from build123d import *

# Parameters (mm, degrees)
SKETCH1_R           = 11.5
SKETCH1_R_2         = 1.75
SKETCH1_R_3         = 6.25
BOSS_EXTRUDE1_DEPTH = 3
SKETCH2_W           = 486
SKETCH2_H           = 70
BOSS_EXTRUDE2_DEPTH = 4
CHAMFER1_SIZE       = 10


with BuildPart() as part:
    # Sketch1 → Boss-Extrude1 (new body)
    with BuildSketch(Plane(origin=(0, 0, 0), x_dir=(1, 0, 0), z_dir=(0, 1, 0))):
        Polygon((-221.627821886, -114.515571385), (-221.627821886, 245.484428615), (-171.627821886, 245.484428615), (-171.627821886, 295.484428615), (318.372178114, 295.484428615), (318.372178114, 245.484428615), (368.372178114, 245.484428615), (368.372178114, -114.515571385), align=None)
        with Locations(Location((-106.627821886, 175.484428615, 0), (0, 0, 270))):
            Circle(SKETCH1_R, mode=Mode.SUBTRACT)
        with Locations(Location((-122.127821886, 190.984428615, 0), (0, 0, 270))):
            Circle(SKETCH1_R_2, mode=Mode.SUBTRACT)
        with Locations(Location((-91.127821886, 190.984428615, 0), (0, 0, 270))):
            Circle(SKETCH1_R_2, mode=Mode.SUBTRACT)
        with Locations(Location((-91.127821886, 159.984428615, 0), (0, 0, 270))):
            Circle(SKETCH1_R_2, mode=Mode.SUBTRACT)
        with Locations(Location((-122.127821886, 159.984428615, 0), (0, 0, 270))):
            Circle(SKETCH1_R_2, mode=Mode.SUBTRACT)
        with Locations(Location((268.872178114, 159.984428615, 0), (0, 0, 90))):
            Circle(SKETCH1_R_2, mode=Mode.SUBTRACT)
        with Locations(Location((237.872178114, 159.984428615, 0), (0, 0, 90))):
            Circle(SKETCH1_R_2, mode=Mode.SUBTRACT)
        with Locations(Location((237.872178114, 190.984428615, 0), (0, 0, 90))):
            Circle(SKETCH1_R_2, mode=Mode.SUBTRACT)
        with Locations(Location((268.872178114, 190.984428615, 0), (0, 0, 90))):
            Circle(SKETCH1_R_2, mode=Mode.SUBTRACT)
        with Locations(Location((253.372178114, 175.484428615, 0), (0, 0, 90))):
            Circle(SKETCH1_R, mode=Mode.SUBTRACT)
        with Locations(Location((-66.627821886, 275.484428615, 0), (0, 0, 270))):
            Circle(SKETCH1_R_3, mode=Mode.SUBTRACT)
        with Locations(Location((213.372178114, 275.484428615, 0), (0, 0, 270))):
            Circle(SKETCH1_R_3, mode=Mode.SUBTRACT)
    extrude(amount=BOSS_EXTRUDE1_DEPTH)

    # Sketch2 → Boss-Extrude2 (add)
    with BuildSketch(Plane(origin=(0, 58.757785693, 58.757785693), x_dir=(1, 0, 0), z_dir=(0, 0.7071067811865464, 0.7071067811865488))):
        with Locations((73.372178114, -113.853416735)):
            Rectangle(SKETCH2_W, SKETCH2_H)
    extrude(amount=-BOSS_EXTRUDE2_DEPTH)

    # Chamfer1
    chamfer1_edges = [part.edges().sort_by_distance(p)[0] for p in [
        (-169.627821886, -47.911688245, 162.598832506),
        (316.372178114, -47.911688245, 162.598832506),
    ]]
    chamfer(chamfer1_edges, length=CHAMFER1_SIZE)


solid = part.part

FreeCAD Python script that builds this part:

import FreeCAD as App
import Part
import Sketcher

V = App.Vector
Q = App.Units.Quantity


def edges_at(feature, points):
    """Names of the edges that pass closest to the given points."""
    edges = feature.Shape.Edges
    near = lambda p: min(range(len(edges)), key=lambda i: edges[i].distToShape(Part.Vertex(*p))[0])
    return sorted({f"Edge{near(p) + 1}" for p in points})


def add_polygon(sketch, points):
    """Adds a closed chain of lines whose ends are joined by coincident constraints."""
    first, n = sketch.GeometryCount, len(points)
    for a, b in zip(points, points[1:] + points[:1]):
        sketch.addGeometry(Part.LineSegment(App.Vector(*a, 0), App.Vector(*b, 0)), False)
    for i in range(n):
        sketch.addConstraint(Sketcher.Constraint("Coincident", first + i, 2, first + (i + 1) % n, 1))

doc = App.newDocument("Part")
body = doc.addObject("PartDesign::Body", "Body")

# Sketch on XZ plane
sketch1 = body.newObject("Sketcher::SketchObject", "Sketch")
sketch1.AttachmentSupport = (doc.getObject("XZ_Plane"), [""])
sketch1.MapMode = "FlatFace"
add_polygon(sketch1, [(-221.6, -245.5), (-221.6, 114.5), (368.4, 114.5), (368.4, -245.5), (318.4, -245.5), (318.4, -295.5), (-171.6, -295.5), (-171.6, -245.5)])  # lines 0-7
sketch1.addGeometry(Part.Circle(V(268.9, -160, 0), V(0, 0, 1), 1.8), False)  # 8
sketch1.addGeometry(Part.Circle(V(237.9, -160, 0), V(0, 0, 1), 1.8), False)  # 9
sketch1.addGeometry(Part.Circle(V(253.4, -175.5, 0), V(0, 0, 1), 11.5), False)  # 10
sketch1.addGeometry(Part.Circle(V(268.9, -191, 0), V(0, 0, 1), 1.8), False)  # 11
sketch1.addGeometry(Part.Circle(V(237.9, -191, 0), V(0, 0, 1), 1.8), False)  # 12
sketch1.addGeometry(Part.Circle(V(-91.1, -160, 0), V(0, 0, 1), 1.8), False)  # 13
sketch1.addGeometry(Part.Circle(V(-122.1, -160, 0), V(0, 0, 1), 1.8), False)  # 14
sketch1.addGeometry(Part.Circle(V(-106.6, -175.5, 0), V(0, 0, 1), 11.5), False)  # 15
sketch1.addGeometry(Part.Circle(V(-91.1, -191, 0), V(0, 0, 1), 1.8), False)  # 16
sketch1.addGeometry(Part.Circle(V(-122.1, -191, 0), V(0, 0, 1), 1.8), False)  # 17
sketch1.addGeometry(Part.Circle(V(213.4, -275.5, 0), V(0, 0, 1), 6.2), False)  # 18
sketch1.addGeometry(Part.Circle(V(-66.6, -275.5, 0), V(0, 0, 1), 6.2), False)  # 19
sketch1.addConstraint([
    Sketcher.Constraint("Vertical", 0),
    Sketcher.Constraint("Horizontal", 1),
    Sketcher.Constraint("Vertical", 2),
    Sketcher.Constraint("Horizontal", 3),
    Sketcher.Constraint("Vertical", 4),
    Sketcher.Constraint("Horizontal", 5),
    Sketcher.Constraint("Vertical", 6),
    Sketcher.Constraint("Horizontal", 7),
    Sketcher.Constraint("Equal", 8, 9),
    Sketcher.Constraint("Equal", 9, 11),
    Sketcher.Constraint("Equal", 11, 12),
    Sketcher.Constraint("Equal", 12, 13),
    Sketcher.Constraint("Equal", 13, 14),
    Sketcher.Constraint("Equal", 10, 15),
    Sketcher.Constraint("Equal", 14, 16),
    Sketcher.Constraint("Equal", 16, 17),
    Sketcher.Constraint("Equal", 18, 19),
    Sketcher.Constraint("Horizontal", 8, 3, 9, 3),
    Sketcher.Constraint("Horizontal", 11, 3, 12, 3),
    Sketcher.Constraint("Horizontal", 9, 3, 13, 3),
    Sketcher.Constraint("Horizontal", 13, 3, 14, 3),
    Sketcher.Constraint("Horizontal", 10, 3, 15, 3),
    Sketcher.Constraint("Horizontal", 12, 3, 16, 3),
    Sketcher.Constraint("Horizontal", 16, 3, 17, 3),
    Sketcher.Constraint("Horizontal", 18, 3, 19, 3),
    Sketcher.Constraint("Horizontal", 3, 2, 6, 2),
    Sketcher.Constraint("Vertical", 8, 3, 11, 3),
    Sketcher.Constraint("Vertical", 9, 3, 12, 3),
    Sketcher.Constraint("Vertical", 13, 3, 16, 3),
    Sketcher.Constraint("Vertical", 14, 3, 17, 3),
    Sketcher.Constraint("Equal", 3, 7),
    Sketcher.Constraint("Equal", 7, 4),
    Sketcher.Constraint("Diameter", 10, Q("23 mm")),
    Sketcher.Constraint("Diameter", 8, Q("3.5 mm")),
    Sketcher.Constraint("Diameter", 18, Q("12.5 mm")),
    Sketcher.Constraint("DistanceX", 1, 1, 1, 2, Q("590 mm")),
    Sketcher.Constraint("DistanceX", 3, 2, 3, 1, Q("50 mm")),
    Sketcher.Constraint("DistanceY", 0, 1, 0, 2, Q("360 mm")),
    Sketcher.Constraint("DistanceX", 9, 3, 8, 3, Q("31 mm")),
    Sketcher.Constraint("DistanceY", 11, 3, 8, 3, Q("31 mm")),
    Sketcher.Constraint("DistanceX", 13, 3, 9, 3, Q("329 mm")),
    Sketcher.Constraint("DistanceX", 14, 3, 13, 3, Q("31 mm")),
    Sketcher.Constraint("DistanceX", 15, 3, 10, 3, Q("360 mm")),
    Sketcher.Constraint("DistanceX", 18, 3, 10, 3, Q("40 mm")),
    Sketcher.Constraint("DistanceY", 18, 3, 10, 3, Q("100 mm")),
    Sketcher.Constraint("DistanceX", 15, 3, 19, 3, Q("40 mm")),
    Sketcher.Constraint("DistanceX", 0, 2, 15, 3, Q("115 mm")),
    Sketcher.Constraint("DistanceY", 15, 3, 0, 2, Q("290 mm")),
    Sketcher.Constraint("DistanceX", 10, 3, 8, 3, Q("15.5 mm")),
    Sketcher.Constraint("DistanceY", 10, 3, 8, 3, Q("15.5 mm")),
    Sketcher.Constraint("DistanceX", -1, 1, 8, 3, Q("268.872178 mm")),
    Sketcher.Constraint("DistanceY", 8, 3, -1, 1, Q("159.984429 mm")),
])
pad1 = body.newObject("PartDesign::Pad", "Pad")
pad1.Profile = sketch1
pad1.Length = 3
pad1.Reversed = True

# Sketch on an angled plane
sketch2 = body.newObject("Sketcher::SketchObject", "Sketch001")
sketch2.Placement = App.Placement(V(0, 58.757786, 58.757786), App.Rotation(V(1, 0, 0), V(0, 0.707106781, -0.707106781), V(0, 0.707106781, 0.707106781), "ZXY"))
add_polygon(sketch2, [(-170, -79), (-170, -149), (316, -149), (316, -79)])  # lines 0-3
sketch2.addConstraint([
    Sketcher.Constraint("Vertical", 0),
    Sketcher.Constraint("Horizontal", 1),
    Sketcher.Constraint("Vertical", 2),
    Sketcher.Constraint("Horizontal", 3),
    Sketcher.Constraint("DistanceX", 1, 1, 1, 2, Q("486 mm")),
    Sketcher.Constraint("DistanceY", 0, 2, 0, 1, Q("70 mm")),
    Sketcher.Constraint("DistanceX", 0, 2, -1, 1, Q("169.627822 mm")),
    Sketcher.Constraint("DistanceY", 0, 2, -1, 1, Q("148.853417 mm")),
])
pad2 = body.newObject("PartDesign::Pad", "Pad001")
pad2.Profile = sketch2
pad2.Length = 4
pad2.Reversed = True
doc.recompute()

chamfer = body.newObject("PartDesign::Chamfer", "Chamfer")
chamfer.Base = (pad2, edges_at(pad2, [(-169.628, -47.912, 162.599), (316.372, -47.912, 162.599)]))
chamfer.Size = 10

doc.recompute()
